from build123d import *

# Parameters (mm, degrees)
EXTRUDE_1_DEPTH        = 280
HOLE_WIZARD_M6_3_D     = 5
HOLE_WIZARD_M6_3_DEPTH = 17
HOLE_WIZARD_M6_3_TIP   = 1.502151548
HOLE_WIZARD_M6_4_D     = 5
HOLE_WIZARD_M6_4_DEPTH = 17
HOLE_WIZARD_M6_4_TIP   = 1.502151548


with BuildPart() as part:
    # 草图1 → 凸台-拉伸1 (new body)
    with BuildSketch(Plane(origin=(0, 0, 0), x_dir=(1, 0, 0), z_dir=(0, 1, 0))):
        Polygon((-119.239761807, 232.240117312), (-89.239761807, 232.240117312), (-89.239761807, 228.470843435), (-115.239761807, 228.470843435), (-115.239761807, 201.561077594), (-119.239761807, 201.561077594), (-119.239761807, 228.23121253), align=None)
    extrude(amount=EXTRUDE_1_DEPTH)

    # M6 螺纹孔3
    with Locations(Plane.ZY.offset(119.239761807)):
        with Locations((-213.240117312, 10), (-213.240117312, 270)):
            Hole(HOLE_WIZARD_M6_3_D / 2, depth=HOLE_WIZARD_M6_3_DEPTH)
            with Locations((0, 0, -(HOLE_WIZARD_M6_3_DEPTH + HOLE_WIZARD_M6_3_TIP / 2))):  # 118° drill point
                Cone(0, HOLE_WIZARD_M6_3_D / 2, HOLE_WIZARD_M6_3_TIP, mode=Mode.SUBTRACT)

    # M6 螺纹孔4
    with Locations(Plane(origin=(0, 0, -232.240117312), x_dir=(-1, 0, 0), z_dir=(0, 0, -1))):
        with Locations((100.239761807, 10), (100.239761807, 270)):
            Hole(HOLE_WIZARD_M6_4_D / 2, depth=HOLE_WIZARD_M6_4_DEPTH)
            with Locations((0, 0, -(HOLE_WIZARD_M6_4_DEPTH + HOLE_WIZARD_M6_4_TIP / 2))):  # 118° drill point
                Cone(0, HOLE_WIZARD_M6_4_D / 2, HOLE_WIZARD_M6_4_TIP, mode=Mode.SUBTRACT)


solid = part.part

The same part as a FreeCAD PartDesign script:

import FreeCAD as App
import Part
import Sketcher
Q = App.Units.Quantity


def add_polygon(sketch, points):
    """Adds a closed chain of lines whose ends are joined by coincident constraints."""
    first, n = sketch.GeometryCount, len(points)
    for a, b in zip(points, points[1:] + points[:1]):
        sketch.addGeometry(Part.LineSegment(App.Vector(*a, 0), App.Vector(*b, 0)), False)
    for i in range(n):
        sketch.addConstraint(Sketcher.Constraint("Coincident", first + i, 2, first + (i + 1) % n, 1))

doc = App.newDocument("Part")
body = doc.addObject("PartDesign::Body", "Body")

# Sketch on XZ plane
sketch1 = body.newObject("Sketcher::SketchObject", "Sketch")
sketch1.AttachmentSupport = (doc.getObject("XZ_Plane"), [""])
sketch1.MapMode = "FlatFace"
add_polygon(sketch1, [(-89.239762, -232.240117), (-119.239762, -232.240117), (-119.239762, -201.561078), (-115.239762, -201.561078), (-115.239762, -228.470843), (-89.239762, -228.470843)])  # lines 0-5
sketch1.addConstraint([
    Sketcher.Constraint("Horizontal", 0),
    Sketcher.Constraint("Vertical", 1),
    Sketcher.Constraint("Horizontal", 2),
    Sketcher.Constraint("Vertical", 3),
    Sketcher.Constraint("Horizontal", 4),
    Sketcher.Constraint("Vertical", 5),
    Sketcher.Constraint("DistanceX", 0, 2, 0, 1, Q("30 mm")),
    Sketcher.Constraint("DistanceX", 2, 1, 2, 2, Q("4 mm")),
    Sketcher.Constraint("DistanceY", 1, 1, 1, 2, Q("30.67904 mm")),
    Sketcher.Constraint("DistanceY", 3, 2, 3, 1, Q("26.909766 mm")),
    Sketcher.Constraint("DistanceX", 0, 2, -1, 1, Q("119.239762 mm")),
    Sketcher.Constraint("DistanceY", 0, 2, -1, 1, Q("232.240117 mm")),
])
pad1 = body.newObject("PartDesign::Pad", "Pad")
pad1.Profile = sketch1
pad1.Length = 280
pad1.Reversed = True

# Sketch on YZ plane
sketch2 = body.newObject("Sketcher::SketchObject", "Sketch001")
sketch2.AttachmentSupport = (doc.getObject("YZ_Plane"), [""])
sketch2.MapMode = "FlatFace"
sketch2.AttachmentOffset = App.Placement(App.Vector(0, 0, -119.239762), App.Rotation())
sketch2.addGeometry([
    Part.Circle(App.Vector(10, -213.240117, 0), App.Vector(0, 0, 1), 2.5),
    Part.Circle(App.Vector(270, -213.240117, 0), App.Vector(0, 0, 1), 2.5),
], False)
sketch2.addConstraint([
    Sketcher.Constraint("Equal", 0, 1),
    Sketcher.Constraint("Horizontal", 0, 3, 1, 3),
    Sketcher.Constraint("Diameter", 0, Q("5 mm")),
    Sketcher.Constraint("DistanceX", -1, 1, 0, 3, Q("10 mm")),
    Sketcher.Constraint("DistanceX", -1, 1, 1, 3, Q("270 mm")),
    Sketcher.Constraint("DistanceY", 0, 3, -1, 1, Q("213.240117 mm")),
])
doc.recompute()
hole = body.newObject("PartDesign::Hole", "Hole")
hole.Profile = sketch2
hole.ThreadType = "None"
hole.Diameter = 5
hole.DepthType = "Dimension"
hole.Depth = 17
hole.DrillPoint = "Angled"
hole.DrillPointAngle = 118
hole.Reversed = True

# Sketch on XY plane
sketch3 = body.newObject("Sketcher::SketchObject", "Sketch002")
sketch3.AttachmentSupport = (doc.getObject("XY_Plane"), [""])
sketch3.MapMode = "FlatFace"
sketch3.AttachmentOffset = App.Placement(App.Vector(0, 0, -232.240117), App.Rotation())
sketch3.addGeometry([
    Part.Circle(App.Vector(-100.239762, 10, 0), App.Vector(0, 0, 1), 2.5),
    Part.Circle(App.Vector(-100.239762, 270, 0), App.Vector(0, 0, 1), 2.5),
], False)
sketch3.addConstraint([
    Sketcher.Constraint("Equal", 0, 1),
    Sketcher.Constraint("Vertical", 0, 3, 1, 3),
    Sketcher.Constraint("Diameter", 0, Q("5 mm")),
    Sketcher.Constraint("DistanceY", -1, 1, 0, 3, Q("10 mm")),
    Sketcher.Constraint("DistanceY", -1, 1, 1, 3, Q("270 mm")),
    Sketcher.Constraint("DistanceX", 0, 3, -1, 1, Q("100.239762 mm")),
])
doc.recompute()
hole2 = body.newObject("PartDesign::Hole", "Hole001")
hole2.Profile = sketch3
hole2.ThreadType = "None"
hole2.Diameter = 5
hole2.DepthType = "Dimension"
hole2.Depth = 17
hole2.DrillPoint = "Angled"
hole2.DrillPointAngle = 118
hole2.Reversed = True

doc.recompute()
